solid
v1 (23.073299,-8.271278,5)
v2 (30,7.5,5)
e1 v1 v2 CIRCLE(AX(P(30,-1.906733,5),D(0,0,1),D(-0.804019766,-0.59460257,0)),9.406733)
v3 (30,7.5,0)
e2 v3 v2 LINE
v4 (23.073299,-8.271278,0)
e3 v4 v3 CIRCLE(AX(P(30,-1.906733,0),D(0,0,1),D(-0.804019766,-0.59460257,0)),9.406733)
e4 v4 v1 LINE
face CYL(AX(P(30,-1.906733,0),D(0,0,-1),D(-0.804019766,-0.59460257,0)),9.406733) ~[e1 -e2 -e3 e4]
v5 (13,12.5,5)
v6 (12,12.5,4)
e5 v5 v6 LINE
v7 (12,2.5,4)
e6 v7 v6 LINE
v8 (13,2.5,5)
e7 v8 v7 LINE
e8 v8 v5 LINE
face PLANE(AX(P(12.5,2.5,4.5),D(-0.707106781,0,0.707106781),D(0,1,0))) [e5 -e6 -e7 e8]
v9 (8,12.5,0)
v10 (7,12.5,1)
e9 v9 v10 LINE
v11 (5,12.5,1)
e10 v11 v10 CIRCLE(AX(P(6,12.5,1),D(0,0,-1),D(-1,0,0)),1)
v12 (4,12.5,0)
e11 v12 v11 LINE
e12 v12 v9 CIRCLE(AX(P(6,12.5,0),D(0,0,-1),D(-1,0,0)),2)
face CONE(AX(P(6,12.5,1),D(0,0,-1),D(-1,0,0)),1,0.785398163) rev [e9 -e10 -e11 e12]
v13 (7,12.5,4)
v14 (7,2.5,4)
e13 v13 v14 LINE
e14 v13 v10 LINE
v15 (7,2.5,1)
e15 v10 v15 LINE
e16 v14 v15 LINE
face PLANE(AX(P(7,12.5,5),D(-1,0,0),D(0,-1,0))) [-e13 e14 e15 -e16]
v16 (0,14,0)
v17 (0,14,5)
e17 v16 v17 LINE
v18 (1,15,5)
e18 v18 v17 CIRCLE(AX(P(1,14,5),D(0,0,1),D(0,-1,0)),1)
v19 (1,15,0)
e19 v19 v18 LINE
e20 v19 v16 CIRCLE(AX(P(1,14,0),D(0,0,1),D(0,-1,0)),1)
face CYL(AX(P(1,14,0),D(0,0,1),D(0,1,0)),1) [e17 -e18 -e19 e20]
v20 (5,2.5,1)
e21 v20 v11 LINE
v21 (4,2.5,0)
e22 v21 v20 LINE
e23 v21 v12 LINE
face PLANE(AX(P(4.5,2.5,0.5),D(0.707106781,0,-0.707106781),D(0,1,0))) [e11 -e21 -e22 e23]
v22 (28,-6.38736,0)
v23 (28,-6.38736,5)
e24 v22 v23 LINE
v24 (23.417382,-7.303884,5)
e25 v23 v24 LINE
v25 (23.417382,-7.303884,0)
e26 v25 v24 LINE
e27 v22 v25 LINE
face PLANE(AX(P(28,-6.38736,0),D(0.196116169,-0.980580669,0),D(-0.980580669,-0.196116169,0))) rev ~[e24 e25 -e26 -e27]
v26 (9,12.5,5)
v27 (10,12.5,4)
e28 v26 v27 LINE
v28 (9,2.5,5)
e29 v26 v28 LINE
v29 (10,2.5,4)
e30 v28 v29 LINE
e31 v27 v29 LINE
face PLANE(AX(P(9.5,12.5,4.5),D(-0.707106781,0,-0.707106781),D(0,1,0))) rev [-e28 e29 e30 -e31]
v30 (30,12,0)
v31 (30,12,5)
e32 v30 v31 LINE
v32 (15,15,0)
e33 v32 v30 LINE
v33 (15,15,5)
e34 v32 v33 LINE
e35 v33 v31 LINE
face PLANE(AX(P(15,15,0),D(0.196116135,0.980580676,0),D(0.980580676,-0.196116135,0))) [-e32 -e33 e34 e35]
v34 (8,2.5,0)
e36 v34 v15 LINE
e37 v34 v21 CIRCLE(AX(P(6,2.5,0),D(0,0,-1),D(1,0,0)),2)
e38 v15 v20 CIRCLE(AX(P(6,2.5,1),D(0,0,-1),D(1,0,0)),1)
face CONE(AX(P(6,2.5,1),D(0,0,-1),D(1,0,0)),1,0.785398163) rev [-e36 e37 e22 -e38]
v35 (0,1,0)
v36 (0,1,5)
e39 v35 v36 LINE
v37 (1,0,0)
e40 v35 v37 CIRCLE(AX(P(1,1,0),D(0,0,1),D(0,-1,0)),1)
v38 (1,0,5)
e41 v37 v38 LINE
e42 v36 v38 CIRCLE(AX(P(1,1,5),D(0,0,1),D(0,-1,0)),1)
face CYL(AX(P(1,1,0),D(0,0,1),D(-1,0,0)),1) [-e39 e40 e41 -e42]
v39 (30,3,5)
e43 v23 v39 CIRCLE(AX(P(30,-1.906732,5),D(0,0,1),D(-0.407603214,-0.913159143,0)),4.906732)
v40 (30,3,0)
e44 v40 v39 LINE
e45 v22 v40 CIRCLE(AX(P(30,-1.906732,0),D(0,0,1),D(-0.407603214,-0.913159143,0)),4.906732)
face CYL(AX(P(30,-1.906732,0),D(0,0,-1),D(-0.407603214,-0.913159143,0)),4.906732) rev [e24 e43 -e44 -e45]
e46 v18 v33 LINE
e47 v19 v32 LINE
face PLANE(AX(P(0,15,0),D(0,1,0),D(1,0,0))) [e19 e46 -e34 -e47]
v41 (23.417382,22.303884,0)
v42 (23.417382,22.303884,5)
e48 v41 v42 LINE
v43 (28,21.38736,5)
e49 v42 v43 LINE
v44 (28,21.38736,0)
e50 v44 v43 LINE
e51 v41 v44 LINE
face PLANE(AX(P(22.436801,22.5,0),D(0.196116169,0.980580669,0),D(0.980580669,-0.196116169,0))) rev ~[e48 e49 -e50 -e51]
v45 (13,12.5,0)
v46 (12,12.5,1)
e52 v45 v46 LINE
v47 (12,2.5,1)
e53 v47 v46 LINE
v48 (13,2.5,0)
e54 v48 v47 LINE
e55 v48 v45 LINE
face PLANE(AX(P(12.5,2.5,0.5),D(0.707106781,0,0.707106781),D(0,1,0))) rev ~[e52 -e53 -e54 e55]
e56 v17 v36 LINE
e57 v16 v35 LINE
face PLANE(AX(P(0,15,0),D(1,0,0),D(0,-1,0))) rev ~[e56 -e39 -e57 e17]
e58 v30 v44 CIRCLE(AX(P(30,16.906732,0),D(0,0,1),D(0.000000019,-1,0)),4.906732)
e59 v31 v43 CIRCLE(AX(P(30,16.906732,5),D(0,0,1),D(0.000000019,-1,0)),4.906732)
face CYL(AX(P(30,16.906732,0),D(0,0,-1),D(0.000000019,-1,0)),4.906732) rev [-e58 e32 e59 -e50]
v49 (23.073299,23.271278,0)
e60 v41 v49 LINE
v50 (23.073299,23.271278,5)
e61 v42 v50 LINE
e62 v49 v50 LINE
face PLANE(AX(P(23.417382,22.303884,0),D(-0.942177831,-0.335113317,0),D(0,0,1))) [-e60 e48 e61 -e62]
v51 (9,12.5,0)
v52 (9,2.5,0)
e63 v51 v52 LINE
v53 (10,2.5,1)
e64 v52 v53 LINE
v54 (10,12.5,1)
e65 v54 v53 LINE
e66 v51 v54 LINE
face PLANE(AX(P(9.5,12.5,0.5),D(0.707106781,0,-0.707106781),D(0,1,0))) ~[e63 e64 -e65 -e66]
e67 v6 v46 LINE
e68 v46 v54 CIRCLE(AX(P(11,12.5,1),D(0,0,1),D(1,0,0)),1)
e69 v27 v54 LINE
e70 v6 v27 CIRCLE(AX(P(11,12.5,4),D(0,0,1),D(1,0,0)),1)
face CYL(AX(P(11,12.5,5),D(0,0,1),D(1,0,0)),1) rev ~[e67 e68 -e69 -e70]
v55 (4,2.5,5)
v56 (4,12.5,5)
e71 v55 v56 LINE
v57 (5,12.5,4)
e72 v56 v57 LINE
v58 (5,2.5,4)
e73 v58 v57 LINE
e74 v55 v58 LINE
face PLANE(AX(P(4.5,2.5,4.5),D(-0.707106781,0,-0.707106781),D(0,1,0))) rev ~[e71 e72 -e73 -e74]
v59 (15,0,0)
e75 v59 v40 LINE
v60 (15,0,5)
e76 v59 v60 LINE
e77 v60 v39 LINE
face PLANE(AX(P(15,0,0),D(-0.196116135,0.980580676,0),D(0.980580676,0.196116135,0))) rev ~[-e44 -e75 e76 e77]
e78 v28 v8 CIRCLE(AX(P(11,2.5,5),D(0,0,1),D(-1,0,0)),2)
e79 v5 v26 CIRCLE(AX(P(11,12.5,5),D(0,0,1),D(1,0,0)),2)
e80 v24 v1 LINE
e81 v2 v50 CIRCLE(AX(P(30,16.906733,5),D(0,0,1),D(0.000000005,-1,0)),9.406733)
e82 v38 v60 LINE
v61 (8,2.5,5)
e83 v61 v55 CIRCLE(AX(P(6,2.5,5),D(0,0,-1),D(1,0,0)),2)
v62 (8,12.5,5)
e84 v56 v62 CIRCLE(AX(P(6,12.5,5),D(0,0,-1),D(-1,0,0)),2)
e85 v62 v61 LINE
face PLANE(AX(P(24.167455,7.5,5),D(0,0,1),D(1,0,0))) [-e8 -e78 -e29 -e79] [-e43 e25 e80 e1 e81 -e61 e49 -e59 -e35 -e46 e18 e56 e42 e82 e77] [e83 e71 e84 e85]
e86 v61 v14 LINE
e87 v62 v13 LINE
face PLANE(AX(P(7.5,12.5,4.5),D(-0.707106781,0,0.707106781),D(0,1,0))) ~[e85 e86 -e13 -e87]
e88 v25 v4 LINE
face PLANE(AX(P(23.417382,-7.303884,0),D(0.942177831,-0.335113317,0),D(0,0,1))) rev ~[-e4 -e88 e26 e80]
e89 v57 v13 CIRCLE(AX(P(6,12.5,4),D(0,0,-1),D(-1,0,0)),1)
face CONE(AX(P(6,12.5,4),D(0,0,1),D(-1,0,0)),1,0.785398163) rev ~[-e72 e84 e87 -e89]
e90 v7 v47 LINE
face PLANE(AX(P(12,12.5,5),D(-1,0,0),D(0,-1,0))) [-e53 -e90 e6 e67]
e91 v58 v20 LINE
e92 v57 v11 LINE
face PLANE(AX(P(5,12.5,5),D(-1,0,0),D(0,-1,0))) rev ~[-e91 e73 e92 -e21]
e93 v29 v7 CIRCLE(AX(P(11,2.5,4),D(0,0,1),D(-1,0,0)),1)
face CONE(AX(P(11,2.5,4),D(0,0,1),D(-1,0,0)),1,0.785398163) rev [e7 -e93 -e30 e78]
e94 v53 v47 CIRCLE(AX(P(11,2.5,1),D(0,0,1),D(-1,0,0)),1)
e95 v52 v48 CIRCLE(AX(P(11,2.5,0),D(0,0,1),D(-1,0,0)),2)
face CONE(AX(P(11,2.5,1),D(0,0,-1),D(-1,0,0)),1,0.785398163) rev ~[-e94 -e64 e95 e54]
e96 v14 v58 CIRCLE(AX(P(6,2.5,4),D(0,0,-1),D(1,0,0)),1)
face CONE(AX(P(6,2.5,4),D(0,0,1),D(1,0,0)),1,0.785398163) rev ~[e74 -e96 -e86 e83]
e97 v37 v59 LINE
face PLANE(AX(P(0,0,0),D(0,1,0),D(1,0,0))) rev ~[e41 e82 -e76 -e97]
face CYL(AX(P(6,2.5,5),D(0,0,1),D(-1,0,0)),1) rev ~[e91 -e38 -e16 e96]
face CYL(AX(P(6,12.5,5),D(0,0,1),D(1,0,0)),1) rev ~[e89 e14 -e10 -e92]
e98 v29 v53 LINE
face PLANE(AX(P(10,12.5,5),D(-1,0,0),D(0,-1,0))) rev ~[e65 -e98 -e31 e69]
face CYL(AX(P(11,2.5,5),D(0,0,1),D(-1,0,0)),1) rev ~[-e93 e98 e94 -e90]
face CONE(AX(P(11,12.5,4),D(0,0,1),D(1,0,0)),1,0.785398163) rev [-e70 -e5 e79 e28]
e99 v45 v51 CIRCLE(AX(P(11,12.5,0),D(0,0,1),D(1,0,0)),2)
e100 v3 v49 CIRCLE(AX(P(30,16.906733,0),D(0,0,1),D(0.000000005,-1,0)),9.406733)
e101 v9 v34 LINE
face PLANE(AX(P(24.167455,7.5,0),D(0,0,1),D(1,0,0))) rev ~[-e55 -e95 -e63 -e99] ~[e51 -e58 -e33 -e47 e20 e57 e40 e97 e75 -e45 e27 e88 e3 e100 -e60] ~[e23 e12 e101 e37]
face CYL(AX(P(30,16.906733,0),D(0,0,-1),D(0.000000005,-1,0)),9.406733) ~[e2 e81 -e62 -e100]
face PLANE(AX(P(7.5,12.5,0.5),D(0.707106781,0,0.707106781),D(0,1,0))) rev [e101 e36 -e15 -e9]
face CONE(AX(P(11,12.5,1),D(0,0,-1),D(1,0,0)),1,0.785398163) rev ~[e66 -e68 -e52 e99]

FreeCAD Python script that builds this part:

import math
import FreeCAD as App
import Part
import Sketcher
Q = App.Units.Quantity


def edges_at(feature, points):
    """Names of the edges that pass closest to the given points."""
    edges = feature.Shape.Edges
    near = lambda p: min(range(len(edges)), key=lambda i: edges[i].distToShape(Part.Vertex(*p))[0])
    return sorted({f"Edge{near(p) + 1}" for p in points})

doc = App.newDocument("Part")
body = doc.addObject("PartDesign::Body", "Body")

# Sketch on XY plane
sketch1 = body.newObject("Sketcher::SketchObject", "Sketch")
sketch1.AttachmentSupport = (doc.getObject("XY_Plane"), [""])
sketch1.MapMode = "FlatFace"
sketch1.addGeometry([
    Part.LineSegment(App.Vector(0, 15, 0), App.Vector(0, 0, 0)),  # 0
    Part.LineSegment(App.Vector(0, 0, 0), App.Vector(15, 0, 0)),  # 1
    Part.LineSegment(App.Vector(15, 0, 0), App.Vector(30, 3, 0)),  # 2
    Part.ArcOfCircle(Part.Circle(App.Vector(30, -1.9, 0), App.Vector(0, 0, 1), 4.9), math.radians(-114), math.radians(90)),  # 3
    Part.LineSegment(App.Vector(28, -6.4, 0), App.Vector(22.4, -7.5, 0)),  # 4
    Part.ArcOfCircle(Part.Circle(App.Vector(30, -1.9, 0), App.Vector(0, 0, 1), 9.4), math.radians(-144), math.radians(90)),  # 5
    Part.ArcOfCircle(Part.Circle(App.Vector(30, 16.9, 0), App.Vector(0, 0, 1), 9.4), math.radians(-90), math.radians(144)),  # 6
    Part.LineSegment(App.Vector(22.4, 22.5, 0), App.Vector(28, 21.4, 0)),  # 7
    Part.ArcOfCircle(Part.Circle(App.Vector(30, 16.9, 0), App.Vector(0, 0, 1), 4.9), math.radians(-90), math.radians(114)),  # 8
    Part.LineSegment(App.Vector(30, 12, 0), App.Vector(15, 15, 0)),  # 9
    Part.LineSegment(App.Vector(15, 15, 0), App.Vector(0, 15, 0)),  # 10
], False)
sketch1.addConstraint([
    Sketcher.Constraint("Coincident", 0, 2, 1, 1),
    Sketcher.Constraint("Coincident", 1, 2, 2, 1),
    Sketcher.Constraint("Coincident", 2, 2, 3, 2),
    Sketcher.Constraint("Coincident", 3, 1, 4, 1),
    Sketcher.Constraint("Coincident", 4, 2, 5, 1),
    Sketcher.Constraint("Tangent", 5, 2, 6, 1),
    Sketcher.Constraint("Coincident", 6, 2, 7, 1),
    Sketcher.Constraint("Coincident", 7, 2, 8, 2),
    Sketcher.Constraint("Coincident", 8, 1, 9, 1),
    Sketcher.Constraint("Coincident", 9, 2, 10, 1),
    Sketcher.Constraint("Coincident", 10, 2, 0, 1),
    Sketcher.Constraint("Vertical", 0),
    Sketcher.Constraint("Horizontal", 1),
    Sketcher.Constraint("Horizontal", 10),
    Sketcher.Constraint("Coincident", 0, 2, -1, 1),
    Sketcher.Constraint("Coincident", 5, 3, 3, 3),
    Sketcher.Constraint("Coincident", 8, 3, 6, 3),
    Sketcher.Constraint("Equal", 5, 6),
    Sketcher.Constraint("Equal", 3, 8),
    Sketcher.Constraint("Parallel", 2, 4),
    Sketcher.Constraint("Parallel", 7, 9),
    Sketcher.Constraint("Vertical", 5, 3, 6, 3),
    Sketcher.Constraint("Vertical", 8, 3, 2, 2),
    Sketcher.Constraint("Vertical", 4, 2, 6, 2),
    Sketcher.Constraint("Vertical", 3, 1, 7, 2),
    Sketcher.Constraint("Vertical", 5, 2, 8, 1),
    Sketcher.Constraint("Vertical", 1, 2, 9, 2),
    Sketcher.Constraint("Equal", 10, 0),
    Sketcher.Constraint("DistanceX", 1, 1, 1, 2, Q("15 mm")),
    Sketcher.Constraint("DistanceX", -1, 1, 3, 3, Q("30 mm")),
    Sketcher.Constraint("DistanceY", -1, 1, 2, 2, Q("3 mm")),
    Sketcher.Constraint("DistanceX", -1, 1, 3, 1, Q("28 mm")),
    Sketcher.Constraint("DistanceY", 5, 2, 6, 2, Q("15 mm")),
])
pad1 = body.newObject("PartDesign::Pad", "Pad")
pad1.Profile = sketch1
pad1.Length = 5

# Sketch on XY plane
sketch2 = body.newObject("Sketcher::SketchObject", "Sketch001")
sketch2.AttachmentSupport = (doc.getObject("XY_Plane"), [""])
sketch2.MapMode = "FlatFace"
sketch2.AttachmentOffset = App.Placement(App.Vector(0, 0, 5), App.Rotation())
sketch2.addGeometry([
    Part.ArcOfCircle(Part.Circle(App.Vector(6, 12.5, 0), App.Vector(0, 0, 1), 1), math.radians(0), math.radians(180)),  # 0
    Part.LineSegment(App.Vector(5, 12.5, 0), App.Vector(5, 2.5, 0)),  # 1
    Part.ArcOfCircle(Part.Circle(App.Vector(6, 2.5, 0), App.Vector(0, 0, 1), 1), math.radians(180), math.radians(360)),  # 2
    Part.LineSegment(App.Vector(7, 2.5, 0), App.Vector(7, 12.5, 0)),  # 3
    Part.ArcOfCircle(Part.Circle(App.Vector(11, 12.5, 0), App.Vector(0, 0, 1), 1), math.radians(0), math.radians(180)),  # 4
    Part.LineSegment(App.Vector(10, 12.5, 0), App.Vector(10, 2.5, 0)),  # 5
    Part.ArcOfCircle(Part.Circle(App.Vector(11, 2.5, 0), App.Vector(0, 0, 1), 1), math.radians(180), math.radians(360)),  # 6
    Part.LineSegment(App.Vector(12, 2.5, 0), App.Vector(12, 12.5, 0)),  # 7
], False)
sketch2.addConstraint([
    Sketcher.Constraint("Tangent", 0, 2, 1, 1),
    Sketcher.Constraint("Tangent", 1, 2, 2, 1),
    Sketcher.Constraint("Tangent", 2, 2, 3, 1),
    Sketcher.Constraint("Tangent", 3, 2, 0, 1),
    Sketcher.Constraint("Tangent", 4, 2, 5, 1),
    Sketcher.Constraint("Tangent", 5, 2, 6, 1),
    Sketcher.Constraint("Tangent", 6, 2, 7, 1),
    Sketcher.Constraint("Tangent", 7, 2, 4, 1),
    Sketcher.Constraint("Vertical", 1),
    Sketcher.Constraint("Vertical", 3),
    Sketcher.Constraint("Vertical", 5),
    Sketcher.Constraint("Vertical", 7),
    Sketcher.Constraint("Equal", 2, 4),
    Sketcher.Constraint("Horizontal", 0, 3, 4, 3),
    Sketcher.Constraint("Horizontal", 2, 3, 6, 3),
    Sketcher.Constraint("Radius", 0, Q("1 mm")),
    Sketcher.Constraint("DistanceY", 1, 2, 1, 1, Q("10 mm")),
    Sketcher.Constraint("DistanceX", -1, 1, 0, 3, Q("6 mm")),
    Sketcher.Constraint("DistanceX", -1, 1, 4, 3, Q("11 mm")),
    Sketcher.Constraint("DistanceY", -1, 1, 0, 3, Q("12.5 mm")),
])
pocket1 = body.newObject("PartDesign::Pocket", "Pocket")
pocket1.Profile = sketch2
pocket1.Length = 5
doc.recompute()

chamfer = body.newObject("PartDesign::Chamfer", "Chamfer")
chamfer.Base = (pocket1, edges_at(pocket1, [
    (7, 7.5, 5),
    (10, 7.5, 5),
    (7, 7.5, 0),
    (10, 7.5, 0),
    (22.437, 22.5, 2.5),
    (22.437, -7.5, 2.5),
]))
chamfer.Size = 1
doc.recompute()

fillet = body.newObject("PartDesign::Fillet", "Fillet")
fillet.Base = (chamfer, edges_at(chamfer, [(0, 15, 2.5), (0, 0, 2.5)]))
fillet.Radius = 1

doc.recompute()
